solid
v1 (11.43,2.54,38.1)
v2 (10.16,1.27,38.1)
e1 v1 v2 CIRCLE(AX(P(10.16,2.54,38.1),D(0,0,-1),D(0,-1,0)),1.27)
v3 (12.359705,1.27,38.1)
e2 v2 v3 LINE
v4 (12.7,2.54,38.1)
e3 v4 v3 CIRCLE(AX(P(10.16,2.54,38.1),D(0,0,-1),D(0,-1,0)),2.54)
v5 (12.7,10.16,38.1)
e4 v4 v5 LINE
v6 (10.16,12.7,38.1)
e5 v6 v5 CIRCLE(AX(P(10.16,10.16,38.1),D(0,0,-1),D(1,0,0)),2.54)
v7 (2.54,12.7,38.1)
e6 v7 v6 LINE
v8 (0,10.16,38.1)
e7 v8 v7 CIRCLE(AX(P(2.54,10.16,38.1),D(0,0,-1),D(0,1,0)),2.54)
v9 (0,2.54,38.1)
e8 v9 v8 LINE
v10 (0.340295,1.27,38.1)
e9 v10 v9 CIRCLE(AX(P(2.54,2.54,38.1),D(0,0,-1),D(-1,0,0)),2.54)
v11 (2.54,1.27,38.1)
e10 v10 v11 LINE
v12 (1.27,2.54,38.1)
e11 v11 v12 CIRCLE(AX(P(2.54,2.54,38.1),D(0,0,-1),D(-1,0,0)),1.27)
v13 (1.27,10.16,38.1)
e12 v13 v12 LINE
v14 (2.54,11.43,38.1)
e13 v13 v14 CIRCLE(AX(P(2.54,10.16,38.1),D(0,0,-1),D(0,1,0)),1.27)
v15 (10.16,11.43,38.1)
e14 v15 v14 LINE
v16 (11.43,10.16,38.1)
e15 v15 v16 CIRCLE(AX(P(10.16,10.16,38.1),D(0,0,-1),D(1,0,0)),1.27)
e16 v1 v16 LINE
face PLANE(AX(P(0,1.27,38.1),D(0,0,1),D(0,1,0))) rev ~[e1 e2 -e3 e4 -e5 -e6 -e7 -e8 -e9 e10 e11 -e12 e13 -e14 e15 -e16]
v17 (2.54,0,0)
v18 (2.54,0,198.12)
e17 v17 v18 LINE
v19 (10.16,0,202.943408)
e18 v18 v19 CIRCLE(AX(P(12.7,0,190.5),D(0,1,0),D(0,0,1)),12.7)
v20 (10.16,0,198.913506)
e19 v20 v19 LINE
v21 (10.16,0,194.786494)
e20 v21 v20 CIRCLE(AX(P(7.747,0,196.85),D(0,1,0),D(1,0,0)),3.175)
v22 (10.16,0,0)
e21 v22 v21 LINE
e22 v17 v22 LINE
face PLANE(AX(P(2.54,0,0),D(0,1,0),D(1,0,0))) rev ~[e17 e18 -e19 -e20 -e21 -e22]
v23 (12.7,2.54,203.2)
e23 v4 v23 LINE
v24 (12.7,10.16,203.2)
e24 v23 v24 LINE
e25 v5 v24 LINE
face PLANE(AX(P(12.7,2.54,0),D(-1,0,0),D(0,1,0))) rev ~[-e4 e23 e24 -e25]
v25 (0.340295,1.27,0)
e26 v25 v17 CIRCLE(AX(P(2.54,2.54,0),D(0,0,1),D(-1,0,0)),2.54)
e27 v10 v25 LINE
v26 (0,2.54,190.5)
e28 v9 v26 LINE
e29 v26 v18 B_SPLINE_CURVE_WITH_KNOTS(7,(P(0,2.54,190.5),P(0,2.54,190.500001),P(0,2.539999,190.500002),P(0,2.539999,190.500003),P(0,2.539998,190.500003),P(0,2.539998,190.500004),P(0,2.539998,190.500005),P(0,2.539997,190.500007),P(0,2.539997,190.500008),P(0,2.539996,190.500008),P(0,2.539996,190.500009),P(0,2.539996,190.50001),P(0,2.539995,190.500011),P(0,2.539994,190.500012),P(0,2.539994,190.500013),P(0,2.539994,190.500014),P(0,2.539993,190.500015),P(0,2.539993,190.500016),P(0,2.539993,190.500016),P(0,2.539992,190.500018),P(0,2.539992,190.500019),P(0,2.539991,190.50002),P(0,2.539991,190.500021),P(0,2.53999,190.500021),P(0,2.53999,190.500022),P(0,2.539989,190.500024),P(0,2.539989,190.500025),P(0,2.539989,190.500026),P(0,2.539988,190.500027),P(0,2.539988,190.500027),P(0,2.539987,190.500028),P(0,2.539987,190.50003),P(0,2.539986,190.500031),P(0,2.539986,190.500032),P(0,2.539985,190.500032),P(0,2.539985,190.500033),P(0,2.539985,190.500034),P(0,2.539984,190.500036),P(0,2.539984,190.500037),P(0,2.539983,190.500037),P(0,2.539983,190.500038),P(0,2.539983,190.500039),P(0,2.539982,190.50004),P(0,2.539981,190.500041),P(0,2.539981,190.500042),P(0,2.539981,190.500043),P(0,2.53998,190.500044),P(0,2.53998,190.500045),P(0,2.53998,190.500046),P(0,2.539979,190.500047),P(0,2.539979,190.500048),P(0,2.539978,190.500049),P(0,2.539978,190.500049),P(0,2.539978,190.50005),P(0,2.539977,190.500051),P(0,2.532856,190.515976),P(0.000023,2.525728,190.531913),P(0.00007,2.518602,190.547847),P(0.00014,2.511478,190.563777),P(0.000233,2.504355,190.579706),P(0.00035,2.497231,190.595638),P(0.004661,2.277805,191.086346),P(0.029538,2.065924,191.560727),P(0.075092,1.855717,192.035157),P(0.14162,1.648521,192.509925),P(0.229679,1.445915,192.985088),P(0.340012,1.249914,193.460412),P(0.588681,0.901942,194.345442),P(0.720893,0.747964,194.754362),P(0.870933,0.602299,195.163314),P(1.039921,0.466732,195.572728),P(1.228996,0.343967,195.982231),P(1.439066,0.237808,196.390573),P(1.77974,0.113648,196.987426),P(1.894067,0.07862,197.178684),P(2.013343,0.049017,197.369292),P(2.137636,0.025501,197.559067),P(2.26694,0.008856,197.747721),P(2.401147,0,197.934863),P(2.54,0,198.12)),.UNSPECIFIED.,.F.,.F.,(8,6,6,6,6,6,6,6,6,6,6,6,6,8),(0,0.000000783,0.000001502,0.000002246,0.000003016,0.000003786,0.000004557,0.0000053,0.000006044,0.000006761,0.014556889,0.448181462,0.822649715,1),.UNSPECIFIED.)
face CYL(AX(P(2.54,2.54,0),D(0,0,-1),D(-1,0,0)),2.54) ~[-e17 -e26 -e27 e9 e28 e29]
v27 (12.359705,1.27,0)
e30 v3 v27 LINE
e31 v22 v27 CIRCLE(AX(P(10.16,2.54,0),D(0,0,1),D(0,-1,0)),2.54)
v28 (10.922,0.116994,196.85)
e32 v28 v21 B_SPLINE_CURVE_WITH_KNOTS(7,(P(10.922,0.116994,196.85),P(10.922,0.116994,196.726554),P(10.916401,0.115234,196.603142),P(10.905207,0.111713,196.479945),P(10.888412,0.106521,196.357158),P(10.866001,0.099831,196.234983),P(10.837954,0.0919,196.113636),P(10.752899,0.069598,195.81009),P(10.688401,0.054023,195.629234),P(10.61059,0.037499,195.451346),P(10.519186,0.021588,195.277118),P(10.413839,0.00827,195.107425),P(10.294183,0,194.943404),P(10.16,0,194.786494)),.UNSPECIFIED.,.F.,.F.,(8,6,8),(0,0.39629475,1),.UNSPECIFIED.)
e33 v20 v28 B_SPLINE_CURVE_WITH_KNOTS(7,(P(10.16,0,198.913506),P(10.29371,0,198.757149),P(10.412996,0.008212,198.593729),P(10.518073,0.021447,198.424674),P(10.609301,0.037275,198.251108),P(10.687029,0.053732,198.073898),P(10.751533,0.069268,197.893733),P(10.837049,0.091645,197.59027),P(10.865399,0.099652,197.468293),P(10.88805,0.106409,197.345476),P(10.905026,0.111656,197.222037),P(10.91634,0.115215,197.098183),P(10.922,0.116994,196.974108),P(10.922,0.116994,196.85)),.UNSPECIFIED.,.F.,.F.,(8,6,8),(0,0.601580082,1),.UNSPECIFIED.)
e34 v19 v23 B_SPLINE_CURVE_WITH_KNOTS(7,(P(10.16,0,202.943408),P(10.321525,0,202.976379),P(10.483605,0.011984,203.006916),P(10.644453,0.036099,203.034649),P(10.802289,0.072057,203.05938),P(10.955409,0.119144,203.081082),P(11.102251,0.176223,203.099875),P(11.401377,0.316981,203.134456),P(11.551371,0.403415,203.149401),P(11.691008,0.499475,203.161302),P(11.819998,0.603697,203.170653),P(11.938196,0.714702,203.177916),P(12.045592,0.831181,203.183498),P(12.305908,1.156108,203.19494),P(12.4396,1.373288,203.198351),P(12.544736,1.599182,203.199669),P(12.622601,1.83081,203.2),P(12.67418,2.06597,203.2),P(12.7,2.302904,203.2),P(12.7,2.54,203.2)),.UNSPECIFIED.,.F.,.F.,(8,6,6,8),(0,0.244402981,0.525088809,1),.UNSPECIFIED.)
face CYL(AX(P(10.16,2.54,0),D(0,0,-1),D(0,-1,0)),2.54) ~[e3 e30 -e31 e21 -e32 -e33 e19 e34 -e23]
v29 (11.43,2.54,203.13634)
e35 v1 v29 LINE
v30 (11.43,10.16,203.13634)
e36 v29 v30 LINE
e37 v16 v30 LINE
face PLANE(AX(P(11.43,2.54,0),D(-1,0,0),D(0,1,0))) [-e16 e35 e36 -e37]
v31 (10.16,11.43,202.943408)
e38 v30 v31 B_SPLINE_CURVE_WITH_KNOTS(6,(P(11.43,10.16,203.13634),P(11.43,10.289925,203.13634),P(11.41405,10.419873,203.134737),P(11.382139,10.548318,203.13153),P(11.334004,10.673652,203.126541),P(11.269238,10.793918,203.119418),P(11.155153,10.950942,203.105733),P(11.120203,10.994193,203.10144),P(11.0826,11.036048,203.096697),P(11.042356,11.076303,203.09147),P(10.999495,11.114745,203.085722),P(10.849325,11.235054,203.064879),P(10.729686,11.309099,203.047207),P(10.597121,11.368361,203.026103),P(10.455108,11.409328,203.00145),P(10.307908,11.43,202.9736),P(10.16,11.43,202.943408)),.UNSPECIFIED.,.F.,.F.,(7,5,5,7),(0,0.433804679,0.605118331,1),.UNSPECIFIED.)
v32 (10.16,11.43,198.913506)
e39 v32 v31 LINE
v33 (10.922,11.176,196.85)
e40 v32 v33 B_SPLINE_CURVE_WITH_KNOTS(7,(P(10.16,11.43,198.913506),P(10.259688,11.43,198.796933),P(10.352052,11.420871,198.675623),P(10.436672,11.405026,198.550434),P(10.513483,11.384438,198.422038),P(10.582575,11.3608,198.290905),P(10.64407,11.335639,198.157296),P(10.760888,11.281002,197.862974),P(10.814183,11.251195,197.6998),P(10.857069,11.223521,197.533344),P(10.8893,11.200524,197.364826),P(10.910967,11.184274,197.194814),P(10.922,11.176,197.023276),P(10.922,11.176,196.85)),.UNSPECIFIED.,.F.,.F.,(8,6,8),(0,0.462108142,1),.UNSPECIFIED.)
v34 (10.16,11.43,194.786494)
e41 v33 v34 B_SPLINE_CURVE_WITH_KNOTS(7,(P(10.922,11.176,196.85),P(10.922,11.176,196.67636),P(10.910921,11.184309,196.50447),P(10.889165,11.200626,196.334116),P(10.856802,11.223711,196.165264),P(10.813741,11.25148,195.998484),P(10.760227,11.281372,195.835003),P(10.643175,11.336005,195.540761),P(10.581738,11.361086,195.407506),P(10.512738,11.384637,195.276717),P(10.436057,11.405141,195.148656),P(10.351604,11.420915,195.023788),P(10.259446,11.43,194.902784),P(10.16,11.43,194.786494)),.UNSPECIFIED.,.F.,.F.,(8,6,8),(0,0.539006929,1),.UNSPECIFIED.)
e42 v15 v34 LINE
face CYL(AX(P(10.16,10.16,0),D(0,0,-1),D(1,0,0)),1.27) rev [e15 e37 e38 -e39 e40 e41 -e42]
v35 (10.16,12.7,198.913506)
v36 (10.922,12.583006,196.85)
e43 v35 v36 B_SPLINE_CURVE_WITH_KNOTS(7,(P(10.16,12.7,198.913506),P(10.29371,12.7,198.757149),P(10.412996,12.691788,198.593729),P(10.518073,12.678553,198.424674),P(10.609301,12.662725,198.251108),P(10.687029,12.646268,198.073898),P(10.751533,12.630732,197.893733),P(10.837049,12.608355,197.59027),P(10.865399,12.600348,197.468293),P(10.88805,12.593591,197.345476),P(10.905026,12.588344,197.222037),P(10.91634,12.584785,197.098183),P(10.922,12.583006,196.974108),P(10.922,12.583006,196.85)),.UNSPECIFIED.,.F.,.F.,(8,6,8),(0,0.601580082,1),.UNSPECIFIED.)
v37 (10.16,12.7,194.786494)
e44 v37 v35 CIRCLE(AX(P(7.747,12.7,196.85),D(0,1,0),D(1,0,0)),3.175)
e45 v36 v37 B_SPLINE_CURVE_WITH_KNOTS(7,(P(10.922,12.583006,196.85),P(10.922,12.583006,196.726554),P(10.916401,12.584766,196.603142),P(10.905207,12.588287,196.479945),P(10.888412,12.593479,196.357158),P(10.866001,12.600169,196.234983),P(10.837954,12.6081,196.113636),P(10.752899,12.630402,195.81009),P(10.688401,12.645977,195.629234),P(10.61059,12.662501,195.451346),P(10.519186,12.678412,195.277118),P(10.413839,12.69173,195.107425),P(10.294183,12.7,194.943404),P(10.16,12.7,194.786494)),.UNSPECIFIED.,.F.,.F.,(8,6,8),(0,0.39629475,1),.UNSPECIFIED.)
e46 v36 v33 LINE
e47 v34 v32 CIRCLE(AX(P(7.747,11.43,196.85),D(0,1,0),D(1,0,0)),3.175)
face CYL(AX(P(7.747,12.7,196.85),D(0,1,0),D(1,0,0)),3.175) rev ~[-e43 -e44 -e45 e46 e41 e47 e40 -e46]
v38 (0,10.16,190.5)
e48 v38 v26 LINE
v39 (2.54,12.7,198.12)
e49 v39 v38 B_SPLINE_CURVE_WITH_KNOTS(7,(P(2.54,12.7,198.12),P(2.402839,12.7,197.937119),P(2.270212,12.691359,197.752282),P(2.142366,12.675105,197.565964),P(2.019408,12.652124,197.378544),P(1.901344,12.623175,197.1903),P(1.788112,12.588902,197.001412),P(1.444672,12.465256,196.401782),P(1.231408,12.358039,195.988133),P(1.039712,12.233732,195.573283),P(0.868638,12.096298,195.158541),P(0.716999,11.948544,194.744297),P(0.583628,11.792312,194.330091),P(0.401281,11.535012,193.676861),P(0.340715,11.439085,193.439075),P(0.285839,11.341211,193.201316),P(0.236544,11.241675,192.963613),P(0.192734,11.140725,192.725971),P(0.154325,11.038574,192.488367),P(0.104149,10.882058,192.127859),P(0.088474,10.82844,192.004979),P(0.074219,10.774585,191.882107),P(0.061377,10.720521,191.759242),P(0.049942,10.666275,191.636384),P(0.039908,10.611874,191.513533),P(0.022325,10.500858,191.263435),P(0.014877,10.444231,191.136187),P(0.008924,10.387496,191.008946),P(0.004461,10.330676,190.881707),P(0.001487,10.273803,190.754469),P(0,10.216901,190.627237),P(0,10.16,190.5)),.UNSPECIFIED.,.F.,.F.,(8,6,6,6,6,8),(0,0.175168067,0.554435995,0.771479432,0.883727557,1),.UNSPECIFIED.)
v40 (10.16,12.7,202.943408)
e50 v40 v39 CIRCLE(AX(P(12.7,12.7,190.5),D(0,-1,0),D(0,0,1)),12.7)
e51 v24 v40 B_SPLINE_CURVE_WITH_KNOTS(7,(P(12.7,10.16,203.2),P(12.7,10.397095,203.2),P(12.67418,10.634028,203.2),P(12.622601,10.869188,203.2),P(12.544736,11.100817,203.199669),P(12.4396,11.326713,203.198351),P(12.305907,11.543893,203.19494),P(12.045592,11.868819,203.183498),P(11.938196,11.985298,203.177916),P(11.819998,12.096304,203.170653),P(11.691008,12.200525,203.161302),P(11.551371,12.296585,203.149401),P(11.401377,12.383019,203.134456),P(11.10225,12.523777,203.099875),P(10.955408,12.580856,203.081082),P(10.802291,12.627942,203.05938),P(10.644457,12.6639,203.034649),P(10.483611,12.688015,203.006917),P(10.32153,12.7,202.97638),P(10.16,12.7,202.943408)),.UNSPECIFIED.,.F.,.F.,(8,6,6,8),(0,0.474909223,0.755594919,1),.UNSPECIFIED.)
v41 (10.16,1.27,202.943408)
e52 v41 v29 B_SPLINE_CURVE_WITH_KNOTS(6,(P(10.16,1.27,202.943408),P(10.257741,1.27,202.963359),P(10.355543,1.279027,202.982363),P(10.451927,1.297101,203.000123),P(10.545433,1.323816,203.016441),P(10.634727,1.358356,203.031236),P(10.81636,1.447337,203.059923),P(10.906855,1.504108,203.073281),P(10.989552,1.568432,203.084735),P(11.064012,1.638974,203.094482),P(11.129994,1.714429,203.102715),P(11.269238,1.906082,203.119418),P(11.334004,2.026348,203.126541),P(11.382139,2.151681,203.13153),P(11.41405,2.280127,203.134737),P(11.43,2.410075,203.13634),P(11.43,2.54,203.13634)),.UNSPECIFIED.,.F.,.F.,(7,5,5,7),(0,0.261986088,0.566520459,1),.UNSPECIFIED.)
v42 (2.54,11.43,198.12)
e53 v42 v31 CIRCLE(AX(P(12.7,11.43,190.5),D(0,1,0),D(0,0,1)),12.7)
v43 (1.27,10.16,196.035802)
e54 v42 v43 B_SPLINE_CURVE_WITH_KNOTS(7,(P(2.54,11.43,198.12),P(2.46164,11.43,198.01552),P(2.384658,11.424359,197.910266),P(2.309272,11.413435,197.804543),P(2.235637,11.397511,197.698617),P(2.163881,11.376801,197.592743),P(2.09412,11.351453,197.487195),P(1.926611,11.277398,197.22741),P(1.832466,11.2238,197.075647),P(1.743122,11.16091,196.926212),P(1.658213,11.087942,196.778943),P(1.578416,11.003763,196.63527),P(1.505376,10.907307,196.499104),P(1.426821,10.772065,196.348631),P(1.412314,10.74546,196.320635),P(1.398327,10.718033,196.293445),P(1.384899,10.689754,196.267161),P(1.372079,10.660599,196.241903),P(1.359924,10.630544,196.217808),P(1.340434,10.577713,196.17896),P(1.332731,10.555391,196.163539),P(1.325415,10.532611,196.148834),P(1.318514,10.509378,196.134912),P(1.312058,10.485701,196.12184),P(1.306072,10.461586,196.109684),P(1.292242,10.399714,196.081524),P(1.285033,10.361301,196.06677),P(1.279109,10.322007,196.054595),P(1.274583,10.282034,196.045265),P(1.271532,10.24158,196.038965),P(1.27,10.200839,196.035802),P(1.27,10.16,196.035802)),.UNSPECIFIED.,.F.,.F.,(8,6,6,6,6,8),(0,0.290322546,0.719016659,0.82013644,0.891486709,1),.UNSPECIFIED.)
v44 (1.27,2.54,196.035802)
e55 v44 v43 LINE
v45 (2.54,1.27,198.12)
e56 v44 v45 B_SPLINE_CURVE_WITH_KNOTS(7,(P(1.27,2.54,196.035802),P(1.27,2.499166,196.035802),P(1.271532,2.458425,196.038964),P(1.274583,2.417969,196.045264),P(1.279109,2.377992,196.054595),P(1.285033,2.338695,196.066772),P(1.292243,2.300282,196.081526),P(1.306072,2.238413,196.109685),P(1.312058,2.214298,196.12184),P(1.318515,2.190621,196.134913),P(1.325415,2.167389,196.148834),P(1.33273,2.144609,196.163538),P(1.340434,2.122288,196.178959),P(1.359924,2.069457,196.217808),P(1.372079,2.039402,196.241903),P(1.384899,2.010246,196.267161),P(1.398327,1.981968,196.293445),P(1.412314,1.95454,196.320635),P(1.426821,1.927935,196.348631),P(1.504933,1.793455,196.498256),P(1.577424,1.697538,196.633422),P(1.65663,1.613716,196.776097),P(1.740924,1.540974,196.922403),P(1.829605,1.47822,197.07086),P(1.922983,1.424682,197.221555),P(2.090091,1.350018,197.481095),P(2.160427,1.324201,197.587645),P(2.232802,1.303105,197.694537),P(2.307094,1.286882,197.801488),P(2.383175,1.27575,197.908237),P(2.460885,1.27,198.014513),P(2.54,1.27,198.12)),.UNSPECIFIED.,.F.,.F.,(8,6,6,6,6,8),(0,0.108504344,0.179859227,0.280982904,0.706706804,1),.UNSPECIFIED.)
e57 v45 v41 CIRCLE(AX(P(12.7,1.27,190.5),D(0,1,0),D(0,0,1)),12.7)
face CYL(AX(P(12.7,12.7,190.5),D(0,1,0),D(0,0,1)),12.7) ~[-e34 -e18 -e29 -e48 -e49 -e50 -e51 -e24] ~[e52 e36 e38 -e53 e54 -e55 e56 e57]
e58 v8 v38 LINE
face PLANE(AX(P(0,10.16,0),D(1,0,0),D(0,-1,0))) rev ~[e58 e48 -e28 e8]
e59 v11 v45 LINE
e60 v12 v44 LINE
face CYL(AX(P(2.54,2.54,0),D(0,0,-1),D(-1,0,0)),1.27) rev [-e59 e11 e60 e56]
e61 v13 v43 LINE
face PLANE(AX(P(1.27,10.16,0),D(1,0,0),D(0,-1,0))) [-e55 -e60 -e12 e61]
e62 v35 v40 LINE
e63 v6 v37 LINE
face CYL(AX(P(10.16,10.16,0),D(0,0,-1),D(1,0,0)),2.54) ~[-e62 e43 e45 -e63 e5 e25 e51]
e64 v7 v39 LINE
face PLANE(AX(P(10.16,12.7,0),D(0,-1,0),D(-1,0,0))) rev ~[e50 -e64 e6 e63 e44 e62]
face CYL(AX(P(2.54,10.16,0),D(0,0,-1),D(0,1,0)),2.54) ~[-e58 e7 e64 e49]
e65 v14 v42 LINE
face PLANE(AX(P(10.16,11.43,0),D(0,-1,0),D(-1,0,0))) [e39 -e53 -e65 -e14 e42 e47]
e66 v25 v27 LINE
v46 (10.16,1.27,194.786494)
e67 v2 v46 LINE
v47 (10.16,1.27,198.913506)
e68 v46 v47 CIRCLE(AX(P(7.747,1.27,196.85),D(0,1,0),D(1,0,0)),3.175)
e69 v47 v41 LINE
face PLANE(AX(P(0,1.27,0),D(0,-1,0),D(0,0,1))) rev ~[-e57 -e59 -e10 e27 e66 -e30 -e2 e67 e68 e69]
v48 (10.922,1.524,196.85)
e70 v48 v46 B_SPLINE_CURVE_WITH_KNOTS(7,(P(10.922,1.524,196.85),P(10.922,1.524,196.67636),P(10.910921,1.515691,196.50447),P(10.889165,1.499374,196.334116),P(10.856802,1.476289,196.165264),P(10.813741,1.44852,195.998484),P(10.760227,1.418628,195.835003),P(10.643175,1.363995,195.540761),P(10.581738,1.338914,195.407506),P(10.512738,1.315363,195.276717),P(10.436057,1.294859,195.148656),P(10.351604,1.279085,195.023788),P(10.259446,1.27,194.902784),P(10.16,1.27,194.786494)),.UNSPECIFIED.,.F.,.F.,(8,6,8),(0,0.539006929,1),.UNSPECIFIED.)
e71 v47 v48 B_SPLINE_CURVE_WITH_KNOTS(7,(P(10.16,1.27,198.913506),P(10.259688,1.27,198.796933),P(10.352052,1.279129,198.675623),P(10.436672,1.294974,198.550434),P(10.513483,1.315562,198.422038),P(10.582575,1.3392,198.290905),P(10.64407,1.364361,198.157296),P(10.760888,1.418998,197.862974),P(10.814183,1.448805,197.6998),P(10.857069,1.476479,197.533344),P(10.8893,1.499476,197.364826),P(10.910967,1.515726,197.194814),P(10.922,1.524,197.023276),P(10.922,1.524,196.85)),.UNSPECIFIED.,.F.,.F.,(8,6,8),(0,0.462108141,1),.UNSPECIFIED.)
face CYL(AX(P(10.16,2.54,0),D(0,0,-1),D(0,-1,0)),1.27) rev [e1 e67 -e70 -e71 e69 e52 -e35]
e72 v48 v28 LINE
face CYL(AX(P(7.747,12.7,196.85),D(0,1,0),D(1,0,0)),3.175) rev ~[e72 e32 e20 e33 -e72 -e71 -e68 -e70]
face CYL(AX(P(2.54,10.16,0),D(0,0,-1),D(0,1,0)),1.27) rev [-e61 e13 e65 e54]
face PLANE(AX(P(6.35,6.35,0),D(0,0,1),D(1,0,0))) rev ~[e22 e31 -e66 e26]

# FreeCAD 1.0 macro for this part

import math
import FreeCAD as App
import Part
import Sketcher
Q = App.Units.Quantity


def add_polygon(sketch, points):
    """Adds a closed chain of lines whose ends are joined by coincident constraints."""
    first, n = sketch.GeometryCount, len(points)
    for a, b in zip(points, points[1:] + points[:1]):
        sketch.addGeometry(Part.LineSegment(App.Vector(*a, 0), App.Vector(*b, 0)), False)
    for i in range(n):
        sketch.addConstraint(Sketcher.Constraint("Coincident", first + i, 2, first + (i + 1) % n, 1))

doc = App.newDocument("Part")
body = doc.addObject("PartDesign::Body", "Body")

sketch1 = body.newObject("Sketcher::SketchObject", "Sketch")
sketch1.AttachmentSupport = (doc.getObject("XY_Plane"), [""])
sketch1.MapMode = "FlatFace"
sketch1.addGeometry([
    Part.LineSegment(App.Vector(2.5, 0, 0), App.Vector(10.2, 0, 0)),
    Part.ArcOfCircle(Part.Circle(App.Vector(10.2, 2.5, 0), App.Vector(0, 0, 1), 2.5), math.radians(-90), math.radians(0)),
    Part.LineSegment(App.Vector(12.7, 2.5, 0), App.Vector(12.7, 10.2, 0)),
    Part.ArcOfCircle(Part.Circle(App.Vector(10.2, 10.2, 0), App.Vector(0, 0, 1), 2.5), math.radians(0), math.radians(90)),
    Part.LineSegment(App.Vector(10.2, 12.7, 0), App.Vector(2.5, 12.7, 0)),
    Part.ArcOfCircle(Part.Circle(App.Vector(2.5, 10.2, 0), App.Vector(0, 0, 1), 2.5), math.radians(90), math.radians(180)),
    Part.LineSegment(App.Vector(0, 10.2, 0), App.Vector(0, 2.5, 0)),
    Part.ArcOfCircle(Part.Circle(App.Vector(2.5, 2.5, 0), App.Vector(0, 0, 1), 2.5), math.radians(-180), math.radians(-90)),
    Part.LineSegment(App.Vector(10.2, 1.3, 0), App.Vector(2.5, 1.3, 0)),
    Part.ArcOfCircle(Part.Circle(App.Vector(2.5, 2.5, 0), App.Vector(0, 0, 1), 1.3), math.radians(180), math.radians(270)),
    Part.LineSegment(App.Vector(1.3, 2.5, 0), App.Vector(1.3, 10.2, 0)),
    Part.ArcOfCircle(Part.Circle(App.Vector(2.5, 10.2, 0), App.Vector(0, 0, 1), 1.3), math.radians(90), math.radians(180)),
    Part.LineSegment(App.Vector(2.5, 11.4, 0), App.Vector(10.2, 11.4, 0)),
    Part.ArcOfCircle(Part.Circle(App.Vector(10.2, 10.2, 0), App.Vector(0, 0, 1), 1.3), math.radians(0), math.radians(90)),
    Part.LineSegment(App.Vector(11.4, 10.2, 0), App.Vector(11.4, 2.5, 0)),
    Part.ArcOfCircle(Part.Circle(App.Vector(10.2, 2.5, 0), App.Vector(0, 0, 1), 1.3), math.radians(-90), math.radians(0)),
], False)
sketch1.addConstraint([
    Sketcher.Constraint("Tangent", 0, 2, 1, 1),
    Sketcher.Constraint("Tangent", 1, 2, 2, 1),
    Sketcher.Constraint("Tangent", 2, 2, 3, 1),
    Sketcher.Constraint("Tangent", 3, 2, 4, 1),
    Sketcher.Constraint("Tangent", 4, 2, 5, 1),
    Sketcher.Constraint("Tangent", 5, 2, 6, 1),
    Sketcher.Constraint("Tangent", 6, 2, 7, 1),
    Sketcher.Constraint("Tangent", 7, 2, 0, 1),
    Sketcher.Constraint("Tangent", 8, 2, 9, 2),
    Sketcher.Constraint("Tangent", 9, 1, 10, 1),
    Sketcher.Constraint("Tangent", 10, 2, 11, 2),
    Sketcher.Constraint("Tangent", 11, 1, 12, 1),
    Sketcher.Constraint("Tangent", 12, 2, 13, 2),
    Sketcher.Constraint("Tangent", 13, 1, 14, 1),
    Sketcher.Constraint("Tangent", 14, 2, 15, 2),
    Sketcher.Constraint("Tangent", 15, 1, 8, 1),
    Sketcher.Constraint("Horizontal", 0),
    Sketcher.Constraint("Vertical", 2),
    Sketcher.Constraint("Horizontal", 4),
    Sketcher.Constraint("Vertical", 6),
    Sketcher.Constraint("Horizontal", 8),
    Sketcher.Constraint("Vertical", 10),
    Sketcher.Constraint("Horizontal", 12),
    Sketcher.Constraint("Vertical", 14),
    Sketcher.Constraint("Coincident", 9, 3, 7, 3),
    Sketcher.Constraint("Coincident", 11, 3, 5, 3),
    Sketcher.Constraint("Coincident", 13, 3, 3, 3),
    Sketcher.Constraint("Equal", 1, 3),
    Sketcher.Constraint("Equal", 3, 5),
    Sketcher.Constraint("Equal", 5, 7),
    Sketcher.Constraint("Equal", 13, 15),
    Sketcher.Constraint("PointOnObject", 0, 2, -1),
    Sketcher.Constraint("PointOnObject", 5, 2, -2),
    Sketcher.Constraint("Equal", 12, 2),
    Sketcher.Constraint("Radius", 1, Q("0.1 in")),
    Sketcher.Constraint("Radius", 9, Q("0.05 in")),
    Sketcher.Constraint("DistanceX", 0, 1, 0, 2, Q("0.3 in")),
])
pad1 = body.newObject("PartDesign::Pad", "Pad")
pad1.Profile = sketch1
pad1.Length = Q("8 in")

sketch2 = body.newObject("Sketcher::SketchObject", "Sketch001")
sketch2.AttachmentSupport = (doc.getObject("XZ_Plane"), [""])
sketch2.MapMode = "FlatFace"
sketch2.AttachmentOffset = App.Placement(App.Vector(0, 0, -0.5 * 25.4), App.Rotation())
sketch2.addGeometry(Part.Circle(App.Vector(7.7, 196.8, 0), App.Vector(0, 0, 1), 3.2), False)
sketch2.addConstraint([
    Sketcher.Constraint("Diameter", 0, Q("0.25 in")),
    Sketcher.Constraint("DistanceY", -1, 1, 0, 3, Q("7.75 in")),
    Sketcher.Constraint("DistanceX", -1, 1, 0, 3, Q("0.305 in")),
])
pocket1 = body.newObject("PartDesign::Pocket", "Pocket")
pocket1.Profile = sketch2
pocket1.Type = "ThroughAll"
pocket1.Reversed = True

sketch3 = body.newObject("Sketcher::SketchObject", "Sketch002")
sketch3.AttachmentSupport = (doc.getObject("YZ_Plane"), [""])
sketch3.MapMode = "FlatFace"
add_polygon(sketch3, [(13, 0), (1, 0), (1, 38), (13, 38)])
sketch3.addConstraint([
    Sketcher.Constraint("Horizontal", 0),
    Sketcher.Constraint("Vertical", 1),
    Sketcher.Constraint("Horizontal", 2),
    Sketcher.Constraint("Vertical", 3),
    Sketcher.Constraint("PointOnObject", 0, 2, -1),
    Sketcher.Constraint("DistanceY", 1, 1, 1, 2, Q("1.5 in")),
    Sketcher.Constraint("DistanceX", 0, 2, 0, 1, Q("0.45 in")),
    Sketcher.Constraint("DistanceX", -1, 1, 2, 2, Q("0.5 in")),
])
pocket2 = body.newObject("PartDesign::Pocket", "Pocket001")
pocket2.Profile = sketch3
pocket2.Type = "ThroughAll"
pocket2.Reversed = True

sketch4 = body.newObject("Sketcher::SketchObject", "Sketch003")
sketch4.AttachmentSupport = (doc.getObject("XZ_Plane"), [""])
sketch4.MapMode = "FlatFace"
sketch4.AttachmentOffset = App.Placement(App.Vector(0, 0, -0.5 * 25.4), App.Rotation())
sketch4.addGeometry([
    Part.LineSegment(App.Vector(0, 203, 0), App.Vector(13, 203, 0)),
    Part.ArcOfCircle(Part.Circle(App.Vector(13, 190, 0), App.Vector(0, 0, 1), 13), math.radians(90), math.radians(180)),
    Part.LineSegment(App.Vector(0, 190, 0), App.Vector(0, 203, 0)),
], False)
sketch4.addConstraint([
    Sketcher.Constraint("Tangent", 0, 2, 1, 1),
    Sketcher.Constraint("Tangent", 1, 2, 2, 1),
    Sketcher.Constraint("Coincident", 2, 2, 0, 1),
    Sketcher.Constraint("Horizontal", 0),
    Sketcher.Constraint("Vertical", 2),
    Sketcher.Constraint("PointOnObject", 1, 2, -2),
    Sketcher.Constraint("Radius", 1, Q("0.5 in")),
    Sketcher.Constraint("DistanceY", -1, 1, 0, 2, Q("8 in")),
])
pocket3 = body.newObject("PartDesign::Pocket", "Pocket002")
pocket3.Profile = sketch4
pocket3.Type = "ThroughAll"
pocket3.Reversed = True

doc.recompute()
